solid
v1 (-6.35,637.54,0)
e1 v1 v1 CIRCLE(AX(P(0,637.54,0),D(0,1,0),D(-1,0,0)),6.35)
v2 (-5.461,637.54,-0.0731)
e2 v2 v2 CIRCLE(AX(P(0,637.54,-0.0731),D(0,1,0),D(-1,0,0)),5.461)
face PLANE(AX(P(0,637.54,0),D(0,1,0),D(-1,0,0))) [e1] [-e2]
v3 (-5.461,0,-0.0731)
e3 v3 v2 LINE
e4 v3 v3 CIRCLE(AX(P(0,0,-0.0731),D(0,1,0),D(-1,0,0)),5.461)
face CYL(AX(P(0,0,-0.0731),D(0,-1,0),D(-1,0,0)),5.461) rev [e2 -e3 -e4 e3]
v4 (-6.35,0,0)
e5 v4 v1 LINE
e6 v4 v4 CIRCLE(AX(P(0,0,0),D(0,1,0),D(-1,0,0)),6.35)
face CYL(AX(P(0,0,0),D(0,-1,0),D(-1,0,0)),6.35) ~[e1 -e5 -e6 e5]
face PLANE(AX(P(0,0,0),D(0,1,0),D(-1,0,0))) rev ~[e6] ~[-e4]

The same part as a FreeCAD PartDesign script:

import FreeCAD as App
import Part
import Sketcher
from FreeCAD import Vector
Q = App.Units.Quantity

doc = App.newDocument("Part")
params = doc.addObject("Spreadsheet::Sheet", "Params")
for row, (alias, value) in enumerate([
    ("sketch1_diameter", "0.5 in"),
    ("sketch1_diameter2", "0.43 in"),
    ("pad1_length", "25.1 in"),
], start=1):
    params.set(f"A{row}", alias)
    params.set(f"B{row}", "=" + value)
    params.setAlias(f"B{row}", alias)

body = doc.addObject("PartDesign::Body", "Body")

sketch1 = body.newObject("Sketcher::SketchObject", "Sketch")
sketch1.AttachmentSupport = (doc.getObject("XZ_Plane"), [""])
sketch1.MapMode = "FlatFace"
sketch1.addGeometry([
    Part.Circle(Vector(0, 0, 0), Vector(0, 0, 1), 6.35),
    Part.Circle(Vector(0, -0.0731, 0), Vector(0, 0, 1), 5.461),
], False)
sketch1.addConstraint([
    Sketcher.Constraint("Coincident", 0, 3, -1, 1),
    Sketcher.Constraint("PointOnObject", 1, 3, -2),
    Sketcher.Constraint("Diameter", 0, Q("0.5 in")),
    Sketcher.Constraint("Diameter", 1, Q("0.43 in")),
    Sketcher.Constraint("DistanceY", 1, 3, -1, 1, Q("0.073 mm")),
])
sketch1.setExpression("Constraints[2]", "Params.sketch1_diameter")
sketch1.setExpression("Constraints[3]", "Params.sketch1_diameter2")
pad1 = body.newObject("PartDesign::Pad", "Pad")
pad1.Profile = sketch1
pad1.setExpression("Length", "Params.pad1_length")
pad1.Reversed = True

doc.recompute()
